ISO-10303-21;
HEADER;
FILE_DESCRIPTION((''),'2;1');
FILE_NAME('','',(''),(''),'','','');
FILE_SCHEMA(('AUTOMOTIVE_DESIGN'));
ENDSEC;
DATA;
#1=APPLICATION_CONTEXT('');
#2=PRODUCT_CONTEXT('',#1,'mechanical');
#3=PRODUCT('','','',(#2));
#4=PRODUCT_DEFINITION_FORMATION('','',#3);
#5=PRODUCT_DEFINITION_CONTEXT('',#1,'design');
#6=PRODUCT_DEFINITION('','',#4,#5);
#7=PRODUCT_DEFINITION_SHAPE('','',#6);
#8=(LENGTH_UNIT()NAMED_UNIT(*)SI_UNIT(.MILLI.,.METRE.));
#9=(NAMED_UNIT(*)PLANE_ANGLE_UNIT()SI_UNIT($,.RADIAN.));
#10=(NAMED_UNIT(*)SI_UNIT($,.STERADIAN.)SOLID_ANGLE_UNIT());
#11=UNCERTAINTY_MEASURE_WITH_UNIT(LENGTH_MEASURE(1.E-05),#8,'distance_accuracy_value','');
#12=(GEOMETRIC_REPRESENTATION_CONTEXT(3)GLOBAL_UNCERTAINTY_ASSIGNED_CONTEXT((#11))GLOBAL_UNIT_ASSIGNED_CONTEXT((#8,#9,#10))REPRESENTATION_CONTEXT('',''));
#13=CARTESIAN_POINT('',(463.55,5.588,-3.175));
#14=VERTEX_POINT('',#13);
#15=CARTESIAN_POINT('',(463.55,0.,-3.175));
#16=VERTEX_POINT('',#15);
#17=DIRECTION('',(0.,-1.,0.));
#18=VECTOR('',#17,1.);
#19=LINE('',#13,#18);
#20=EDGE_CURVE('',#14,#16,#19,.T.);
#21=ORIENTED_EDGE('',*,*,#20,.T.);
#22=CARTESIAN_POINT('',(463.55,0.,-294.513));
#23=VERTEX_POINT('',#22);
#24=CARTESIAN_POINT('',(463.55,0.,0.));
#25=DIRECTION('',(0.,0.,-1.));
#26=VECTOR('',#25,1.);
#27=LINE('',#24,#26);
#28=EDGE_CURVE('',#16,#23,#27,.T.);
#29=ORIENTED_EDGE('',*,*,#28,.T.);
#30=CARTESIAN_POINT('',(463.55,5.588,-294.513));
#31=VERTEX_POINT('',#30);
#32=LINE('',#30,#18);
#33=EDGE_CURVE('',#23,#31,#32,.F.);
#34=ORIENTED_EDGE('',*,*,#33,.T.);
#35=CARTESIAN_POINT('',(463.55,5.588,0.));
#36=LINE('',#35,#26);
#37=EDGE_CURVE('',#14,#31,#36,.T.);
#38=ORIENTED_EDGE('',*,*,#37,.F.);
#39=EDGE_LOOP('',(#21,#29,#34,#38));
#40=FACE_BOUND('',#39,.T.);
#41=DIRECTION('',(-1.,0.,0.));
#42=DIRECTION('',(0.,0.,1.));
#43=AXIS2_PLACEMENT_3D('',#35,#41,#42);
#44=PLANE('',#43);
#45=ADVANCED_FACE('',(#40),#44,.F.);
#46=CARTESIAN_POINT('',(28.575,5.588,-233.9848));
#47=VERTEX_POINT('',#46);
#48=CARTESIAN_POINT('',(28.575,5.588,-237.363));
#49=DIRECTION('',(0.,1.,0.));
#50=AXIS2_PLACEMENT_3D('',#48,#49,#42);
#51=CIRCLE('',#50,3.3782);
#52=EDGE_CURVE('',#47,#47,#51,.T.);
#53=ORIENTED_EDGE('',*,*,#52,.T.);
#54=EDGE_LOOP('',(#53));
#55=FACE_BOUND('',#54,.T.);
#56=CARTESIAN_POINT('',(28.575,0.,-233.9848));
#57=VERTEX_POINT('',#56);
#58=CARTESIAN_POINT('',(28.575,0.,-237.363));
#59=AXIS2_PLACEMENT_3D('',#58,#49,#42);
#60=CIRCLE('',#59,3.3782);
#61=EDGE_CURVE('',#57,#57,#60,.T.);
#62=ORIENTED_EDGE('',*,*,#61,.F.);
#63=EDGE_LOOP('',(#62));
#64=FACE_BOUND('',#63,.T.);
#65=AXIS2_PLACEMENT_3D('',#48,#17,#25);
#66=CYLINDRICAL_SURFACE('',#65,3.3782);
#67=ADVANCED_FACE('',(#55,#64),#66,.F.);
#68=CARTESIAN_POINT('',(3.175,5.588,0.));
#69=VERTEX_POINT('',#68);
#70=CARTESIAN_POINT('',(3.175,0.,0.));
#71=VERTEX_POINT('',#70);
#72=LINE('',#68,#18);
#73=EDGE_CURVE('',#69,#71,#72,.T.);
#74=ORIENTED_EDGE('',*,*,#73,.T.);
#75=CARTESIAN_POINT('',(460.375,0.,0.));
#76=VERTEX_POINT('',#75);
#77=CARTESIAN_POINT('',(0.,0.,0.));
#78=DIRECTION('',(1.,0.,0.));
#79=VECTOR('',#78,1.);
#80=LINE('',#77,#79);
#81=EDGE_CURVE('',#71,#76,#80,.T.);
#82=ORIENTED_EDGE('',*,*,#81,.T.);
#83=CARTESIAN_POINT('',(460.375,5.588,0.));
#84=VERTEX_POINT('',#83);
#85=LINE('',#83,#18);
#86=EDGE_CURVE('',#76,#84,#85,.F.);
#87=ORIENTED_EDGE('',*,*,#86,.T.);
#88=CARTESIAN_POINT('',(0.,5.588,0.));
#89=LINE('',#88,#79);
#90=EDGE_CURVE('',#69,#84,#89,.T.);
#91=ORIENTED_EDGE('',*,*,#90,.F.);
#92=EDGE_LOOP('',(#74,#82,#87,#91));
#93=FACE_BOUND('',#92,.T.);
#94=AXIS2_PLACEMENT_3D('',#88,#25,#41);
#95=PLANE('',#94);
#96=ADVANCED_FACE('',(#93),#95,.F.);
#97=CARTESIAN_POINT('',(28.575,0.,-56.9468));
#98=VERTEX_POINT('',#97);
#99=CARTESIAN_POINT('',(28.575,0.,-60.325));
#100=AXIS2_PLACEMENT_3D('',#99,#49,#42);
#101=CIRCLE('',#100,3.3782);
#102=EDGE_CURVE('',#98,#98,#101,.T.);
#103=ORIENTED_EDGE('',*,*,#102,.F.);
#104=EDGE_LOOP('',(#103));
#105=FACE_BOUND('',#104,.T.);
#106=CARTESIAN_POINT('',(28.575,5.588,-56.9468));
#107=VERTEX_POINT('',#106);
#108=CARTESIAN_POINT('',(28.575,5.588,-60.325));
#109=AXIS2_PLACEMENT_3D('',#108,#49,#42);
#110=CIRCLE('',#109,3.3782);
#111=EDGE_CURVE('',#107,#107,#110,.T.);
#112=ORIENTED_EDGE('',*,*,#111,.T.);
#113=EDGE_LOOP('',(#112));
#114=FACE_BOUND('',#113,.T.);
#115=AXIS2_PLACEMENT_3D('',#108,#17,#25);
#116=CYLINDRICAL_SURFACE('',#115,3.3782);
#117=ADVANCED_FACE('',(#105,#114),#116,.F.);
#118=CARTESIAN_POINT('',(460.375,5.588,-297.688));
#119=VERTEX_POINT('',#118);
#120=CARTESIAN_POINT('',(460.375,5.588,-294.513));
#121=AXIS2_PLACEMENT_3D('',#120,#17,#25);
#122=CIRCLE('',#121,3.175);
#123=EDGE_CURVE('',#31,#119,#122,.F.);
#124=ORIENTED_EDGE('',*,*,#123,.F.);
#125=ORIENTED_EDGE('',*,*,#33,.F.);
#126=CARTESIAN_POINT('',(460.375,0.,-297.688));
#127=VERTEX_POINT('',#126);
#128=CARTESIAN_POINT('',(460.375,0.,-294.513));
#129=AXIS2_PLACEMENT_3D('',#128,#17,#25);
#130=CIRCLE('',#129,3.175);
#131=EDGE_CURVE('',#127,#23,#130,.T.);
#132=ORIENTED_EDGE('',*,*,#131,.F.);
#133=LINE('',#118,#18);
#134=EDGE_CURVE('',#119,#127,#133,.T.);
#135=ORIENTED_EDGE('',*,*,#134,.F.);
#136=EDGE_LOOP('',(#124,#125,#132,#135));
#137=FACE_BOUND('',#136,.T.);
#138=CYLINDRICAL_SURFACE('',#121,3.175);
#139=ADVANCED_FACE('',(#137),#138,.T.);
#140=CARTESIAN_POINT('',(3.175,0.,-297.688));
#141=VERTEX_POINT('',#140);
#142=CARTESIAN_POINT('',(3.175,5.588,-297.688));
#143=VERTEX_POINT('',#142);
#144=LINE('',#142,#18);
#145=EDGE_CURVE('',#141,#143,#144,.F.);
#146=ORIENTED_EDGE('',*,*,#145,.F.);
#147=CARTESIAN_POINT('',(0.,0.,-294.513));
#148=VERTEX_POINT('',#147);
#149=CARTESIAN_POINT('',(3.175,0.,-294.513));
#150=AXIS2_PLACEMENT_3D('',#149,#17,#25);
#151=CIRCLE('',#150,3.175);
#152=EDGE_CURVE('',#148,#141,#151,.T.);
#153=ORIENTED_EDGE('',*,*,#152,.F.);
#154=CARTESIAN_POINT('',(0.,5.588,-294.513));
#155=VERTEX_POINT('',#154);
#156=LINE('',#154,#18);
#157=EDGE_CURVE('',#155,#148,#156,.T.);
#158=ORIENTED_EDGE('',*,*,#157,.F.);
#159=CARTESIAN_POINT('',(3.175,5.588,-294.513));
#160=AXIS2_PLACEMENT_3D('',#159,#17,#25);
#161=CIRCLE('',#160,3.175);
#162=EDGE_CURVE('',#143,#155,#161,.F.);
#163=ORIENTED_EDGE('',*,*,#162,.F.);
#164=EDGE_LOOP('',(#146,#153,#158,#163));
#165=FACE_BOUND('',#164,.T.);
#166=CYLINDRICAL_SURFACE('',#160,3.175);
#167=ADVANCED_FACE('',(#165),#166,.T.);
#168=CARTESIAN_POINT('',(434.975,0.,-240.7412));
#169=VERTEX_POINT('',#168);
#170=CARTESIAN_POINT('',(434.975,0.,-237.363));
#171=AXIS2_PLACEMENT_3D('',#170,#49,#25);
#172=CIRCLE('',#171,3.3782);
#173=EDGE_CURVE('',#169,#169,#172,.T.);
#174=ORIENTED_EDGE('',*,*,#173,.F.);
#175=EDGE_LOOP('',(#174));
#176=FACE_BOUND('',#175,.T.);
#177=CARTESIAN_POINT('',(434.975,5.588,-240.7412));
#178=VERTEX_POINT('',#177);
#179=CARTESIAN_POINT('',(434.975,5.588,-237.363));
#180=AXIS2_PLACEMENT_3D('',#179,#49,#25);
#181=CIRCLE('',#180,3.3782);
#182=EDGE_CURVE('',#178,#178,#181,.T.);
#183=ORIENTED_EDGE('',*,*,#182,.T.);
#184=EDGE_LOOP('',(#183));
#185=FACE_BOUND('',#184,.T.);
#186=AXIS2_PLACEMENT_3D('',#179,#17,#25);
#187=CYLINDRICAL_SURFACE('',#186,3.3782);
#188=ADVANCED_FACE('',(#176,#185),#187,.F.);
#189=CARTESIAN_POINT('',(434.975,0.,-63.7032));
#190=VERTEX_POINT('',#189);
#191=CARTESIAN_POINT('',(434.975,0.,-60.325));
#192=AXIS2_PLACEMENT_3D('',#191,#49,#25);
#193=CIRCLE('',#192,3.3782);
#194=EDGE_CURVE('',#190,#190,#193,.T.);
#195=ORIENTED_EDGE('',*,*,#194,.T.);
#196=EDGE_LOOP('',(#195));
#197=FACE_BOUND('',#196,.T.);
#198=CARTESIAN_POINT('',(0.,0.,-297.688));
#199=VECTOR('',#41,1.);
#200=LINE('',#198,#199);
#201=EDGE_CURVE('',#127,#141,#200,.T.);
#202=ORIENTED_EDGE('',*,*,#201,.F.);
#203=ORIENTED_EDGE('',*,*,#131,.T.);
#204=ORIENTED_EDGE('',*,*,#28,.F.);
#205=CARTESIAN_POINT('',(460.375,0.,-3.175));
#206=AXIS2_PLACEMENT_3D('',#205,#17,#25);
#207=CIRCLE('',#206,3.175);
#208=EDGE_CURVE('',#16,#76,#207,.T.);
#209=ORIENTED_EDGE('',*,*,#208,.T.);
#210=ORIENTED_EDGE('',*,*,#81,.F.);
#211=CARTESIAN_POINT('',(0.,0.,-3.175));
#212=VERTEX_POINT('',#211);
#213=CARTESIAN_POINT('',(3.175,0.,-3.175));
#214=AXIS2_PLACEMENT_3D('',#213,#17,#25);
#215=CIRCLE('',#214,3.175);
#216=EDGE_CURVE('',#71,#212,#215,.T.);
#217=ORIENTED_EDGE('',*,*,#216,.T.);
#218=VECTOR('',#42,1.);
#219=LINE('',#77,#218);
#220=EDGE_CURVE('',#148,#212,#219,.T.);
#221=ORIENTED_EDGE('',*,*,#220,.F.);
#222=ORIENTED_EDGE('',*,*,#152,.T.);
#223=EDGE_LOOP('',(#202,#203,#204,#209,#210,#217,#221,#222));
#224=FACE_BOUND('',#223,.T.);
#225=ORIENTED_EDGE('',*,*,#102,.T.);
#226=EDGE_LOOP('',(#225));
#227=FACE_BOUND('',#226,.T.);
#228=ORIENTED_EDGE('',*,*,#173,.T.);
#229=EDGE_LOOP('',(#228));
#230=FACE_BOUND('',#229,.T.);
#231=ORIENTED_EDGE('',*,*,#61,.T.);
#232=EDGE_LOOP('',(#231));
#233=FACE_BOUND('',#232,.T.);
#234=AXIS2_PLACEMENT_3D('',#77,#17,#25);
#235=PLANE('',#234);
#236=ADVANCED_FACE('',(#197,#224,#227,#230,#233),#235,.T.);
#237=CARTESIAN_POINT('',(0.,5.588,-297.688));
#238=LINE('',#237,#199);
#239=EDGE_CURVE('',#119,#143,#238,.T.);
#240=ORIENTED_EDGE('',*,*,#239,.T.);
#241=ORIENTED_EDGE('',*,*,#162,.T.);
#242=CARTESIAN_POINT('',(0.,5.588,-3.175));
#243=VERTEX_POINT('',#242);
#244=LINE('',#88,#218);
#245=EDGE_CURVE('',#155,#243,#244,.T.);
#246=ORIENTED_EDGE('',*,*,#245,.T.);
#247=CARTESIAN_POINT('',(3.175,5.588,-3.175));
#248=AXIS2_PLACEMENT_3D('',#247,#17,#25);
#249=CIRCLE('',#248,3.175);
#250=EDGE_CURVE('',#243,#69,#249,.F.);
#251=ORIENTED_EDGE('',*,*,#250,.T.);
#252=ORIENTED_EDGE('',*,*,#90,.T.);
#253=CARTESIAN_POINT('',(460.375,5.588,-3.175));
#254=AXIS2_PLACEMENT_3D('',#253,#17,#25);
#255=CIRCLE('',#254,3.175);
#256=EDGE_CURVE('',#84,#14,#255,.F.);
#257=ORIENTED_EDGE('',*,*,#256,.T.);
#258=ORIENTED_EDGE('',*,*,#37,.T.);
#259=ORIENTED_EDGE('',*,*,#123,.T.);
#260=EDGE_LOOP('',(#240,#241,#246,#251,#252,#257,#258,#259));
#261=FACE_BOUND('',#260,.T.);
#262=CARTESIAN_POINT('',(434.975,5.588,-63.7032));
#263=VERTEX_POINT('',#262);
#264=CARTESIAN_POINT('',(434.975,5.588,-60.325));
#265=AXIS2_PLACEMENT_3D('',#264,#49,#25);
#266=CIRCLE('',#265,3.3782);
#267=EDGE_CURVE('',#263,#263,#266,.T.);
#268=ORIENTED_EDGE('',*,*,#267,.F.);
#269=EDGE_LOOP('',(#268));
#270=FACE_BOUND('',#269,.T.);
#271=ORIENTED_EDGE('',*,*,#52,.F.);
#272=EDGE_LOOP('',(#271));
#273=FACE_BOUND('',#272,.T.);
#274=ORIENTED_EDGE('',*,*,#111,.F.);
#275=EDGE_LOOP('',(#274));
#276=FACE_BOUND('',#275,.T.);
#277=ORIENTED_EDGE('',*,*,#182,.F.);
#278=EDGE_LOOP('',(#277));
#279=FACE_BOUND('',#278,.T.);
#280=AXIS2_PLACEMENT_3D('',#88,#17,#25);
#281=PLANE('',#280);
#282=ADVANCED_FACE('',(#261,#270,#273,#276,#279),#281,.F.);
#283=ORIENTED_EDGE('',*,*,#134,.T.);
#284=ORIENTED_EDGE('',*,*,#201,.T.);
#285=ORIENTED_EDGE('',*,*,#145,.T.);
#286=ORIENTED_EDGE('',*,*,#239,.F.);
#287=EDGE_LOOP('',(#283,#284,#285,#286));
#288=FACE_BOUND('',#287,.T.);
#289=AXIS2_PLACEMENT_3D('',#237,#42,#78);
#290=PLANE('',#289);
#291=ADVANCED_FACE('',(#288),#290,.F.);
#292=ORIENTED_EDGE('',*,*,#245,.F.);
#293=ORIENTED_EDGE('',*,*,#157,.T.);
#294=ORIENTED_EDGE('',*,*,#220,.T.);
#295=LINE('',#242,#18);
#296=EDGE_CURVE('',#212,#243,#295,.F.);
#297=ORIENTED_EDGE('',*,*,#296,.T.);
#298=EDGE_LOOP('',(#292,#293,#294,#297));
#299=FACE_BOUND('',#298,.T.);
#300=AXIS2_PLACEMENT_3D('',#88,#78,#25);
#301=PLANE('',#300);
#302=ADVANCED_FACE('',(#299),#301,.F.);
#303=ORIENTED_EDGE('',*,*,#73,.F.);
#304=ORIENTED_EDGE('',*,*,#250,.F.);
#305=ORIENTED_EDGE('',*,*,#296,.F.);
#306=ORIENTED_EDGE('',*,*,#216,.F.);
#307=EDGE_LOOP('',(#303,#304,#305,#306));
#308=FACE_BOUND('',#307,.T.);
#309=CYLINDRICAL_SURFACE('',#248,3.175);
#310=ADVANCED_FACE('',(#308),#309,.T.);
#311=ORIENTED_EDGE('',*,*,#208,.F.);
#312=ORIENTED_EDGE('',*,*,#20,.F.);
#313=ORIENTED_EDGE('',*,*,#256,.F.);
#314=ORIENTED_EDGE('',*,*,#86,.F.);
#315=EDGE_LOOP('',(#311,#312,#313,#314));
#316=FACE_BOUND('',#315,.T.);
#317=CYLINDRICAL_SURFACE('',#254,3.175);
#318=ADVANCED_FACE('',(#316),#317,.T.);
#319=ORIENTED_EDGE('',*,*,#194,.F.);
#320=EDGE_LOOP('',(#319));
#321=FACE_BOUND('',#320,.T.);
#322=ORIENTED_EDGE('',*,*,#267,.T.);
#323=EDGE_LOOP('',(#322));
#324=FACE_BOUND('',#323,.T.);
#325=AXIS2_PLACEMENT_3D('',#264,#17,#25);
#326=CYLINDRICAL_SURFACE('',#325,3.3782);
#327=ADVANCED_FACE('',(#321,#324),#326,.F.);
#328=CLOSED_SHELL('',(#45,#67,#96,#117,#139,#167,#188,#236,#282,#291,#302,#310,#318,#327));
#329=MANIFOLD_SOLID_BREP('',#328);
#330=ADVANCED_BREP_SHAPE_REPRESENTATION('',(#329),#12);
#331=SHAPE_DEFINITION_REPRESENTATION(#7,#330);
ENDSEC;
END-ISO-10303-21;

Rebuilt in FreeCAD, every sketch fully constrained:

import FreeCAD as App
import Part
import Sketcher
Q = App.Units.Quantity


def edges_at(feature, points):
    """Names of the edges that pass closest to the given points."""
    edges = feature.Shape.Edges
    near = lambda p: min(range(len(edges)), key=lambda i: edges[i].distToShape(Part.Vertex(*p))[0])
    return sorted({f"Edge{near(p) + 1}" for p in points})

doc = App.newDocument("Part")
params = doc.addObject("Spreadsheet::Sheet", "Params")
for row, (alias, value) in enumerate([
    ("sketch1_diameter", "0.266 in"),
    ("sketch1_width", "18.25 in"),
    ("sketch1_height", "11.72 in"),
    ("pad1_length", "0.22 in"),
    ("fillet_radius", "0.125 in"),
], start=1):
    params.set(f"A{row}", alias)
    params.set(f"B{row}", "=" + value)
    params.setAlias(f"B{row}", alias)

body = doc.addObject("PartDesign::Body", "Body")

# Sketch on XZ plane
sketch1 = doc.addObject("Sketcher::SketchObject", "Sketch")
body.addObject(sketch1)
sketch1.AttachmentSupport = (doc.XZ_Plane, [""])
sketch1.MapMode = "FlatFace"
sketch1.addGeometry([
    Part.LineSegment(App.Vector(0, -297.7, 0), App.Vector(0, 0, 0)),  # 0
    Part.LineSegment(App.Vector(0, 0, 0), App.Vector(463.6, 0, 0)),  # 1
    Part.LineSegment(App.Vector(463.6, 0, 0), App.Vector(463.6, -297.7, 0)),  # 2
    Part.LineSegment(App.Vector(463.6, -297.7, 0), App.Vector(0, -297.7, 0)),  # 3
    Part.Circle(App.Vector(28.6, -60.3, 0), App.Vector(0, 0, 1), 3.4),  # 4
    Part.Circle(App.Vector(435, -60.3, 0), App.Vector(0, 0, 1), 3.4),  # 5
    Part.Circle(App.Vector(28.6, -237.4, 0), App.Vector(0, 0, 1), 3.4),  # 6
    Part.Circle(App.Vector(435, -237.4, 0), App.Vector(0, 0, 1), 3.4),  # 7
], False)
sketch1.addConstraint([
    Sketcher.Constraint("Coincident", 0, 2, 1, 1),
    Sketcher.Constraint("Coincident", 1, 2, 2, 1),
    Sketcher.Constraint("Coincident", 2, 2, 3, 1),
    Sketcher.Constraint("Coincident", 3, 2, 0, 1),
    Sketcher.Constraint("Vertical", 0),
    Sketcher.Constraint("Horizontal", 1),
    Sketcher.Constraint("Vertical", 2),
    Sketcher.Constraint("Horizontal", 3),
    Sketcher.Constraint("Coincident", 0, 2, -1, 1),
    Sketcher.Constraint("Equal", 4, 5),
    Sketcher.Constraint("Equal", 5, 6),
    Sketcher.Constraint("Equal", 6, 7),
    Sketcher.Constraint("Horizontal", 4, 3, 5, 3),
    Sketcher.Constraint("Horizontal", 6, 3, 7, 3),
    Sketcher.Constraint("Vertical", 4, 3, 6, 3),
    Sketcher.Constraint("Vertical", 5, 3, 7, 3),
    Sketcher.Constraint("Diameter", 4, Q("0.266 in")),
    Sketcher.Constraint("DistanceX", 4, 3, 5, 3, Q("16 in")),
    Sketcher.Constraint("DistanceX", 1, 1, 1, 2, Q("18.25 in")),
    Sketcher.Constraint("DistanceY", 0, 1, 0, 2, Q("11.72 in")),
    Sketcher.Constraint("DistanceY", 6, 3, 4, 3, Q("6.97 in")),
    Sketcher.Constraint("DistanceX", -1, 1, 4, 3, Q("1.125 in")),
    Sketcher.Constraint("DistanceY", 4, 3, -1, 1, Q("2.375 in")),
])
sketch1.setExpression("Constraints[16]", "Params.sketch1_diameter")
sketch1.setExpression("Constraints[18]", "Params.sketch1_width")
sketch1.setExpression("Constraints[19]", "Params.sketch1_height")
pad1 = doc.addObject("PartDesign::Pad", "Pad")
body.addObject(pad1)
pad1.Profile = sketch1
pad1.setExpression("Length", "Params.pad1_length")
pad1.Reversed = True
doc.recompute()

fillet = doc.addObject("PartDesign::Fillet", "Fillet")
body.addObject(fillet)
fillet.Base = (pad1, edges_at(pad1, [
    (0, 2.794, -297.688),
    (463.55, 2.794, -297.688),
    (463.55, 2.794, 0),
    (0, 2.794, 0),
]))
fillet.setExpression("Radius", "Params.fillet_radius")

doc.recompute()
